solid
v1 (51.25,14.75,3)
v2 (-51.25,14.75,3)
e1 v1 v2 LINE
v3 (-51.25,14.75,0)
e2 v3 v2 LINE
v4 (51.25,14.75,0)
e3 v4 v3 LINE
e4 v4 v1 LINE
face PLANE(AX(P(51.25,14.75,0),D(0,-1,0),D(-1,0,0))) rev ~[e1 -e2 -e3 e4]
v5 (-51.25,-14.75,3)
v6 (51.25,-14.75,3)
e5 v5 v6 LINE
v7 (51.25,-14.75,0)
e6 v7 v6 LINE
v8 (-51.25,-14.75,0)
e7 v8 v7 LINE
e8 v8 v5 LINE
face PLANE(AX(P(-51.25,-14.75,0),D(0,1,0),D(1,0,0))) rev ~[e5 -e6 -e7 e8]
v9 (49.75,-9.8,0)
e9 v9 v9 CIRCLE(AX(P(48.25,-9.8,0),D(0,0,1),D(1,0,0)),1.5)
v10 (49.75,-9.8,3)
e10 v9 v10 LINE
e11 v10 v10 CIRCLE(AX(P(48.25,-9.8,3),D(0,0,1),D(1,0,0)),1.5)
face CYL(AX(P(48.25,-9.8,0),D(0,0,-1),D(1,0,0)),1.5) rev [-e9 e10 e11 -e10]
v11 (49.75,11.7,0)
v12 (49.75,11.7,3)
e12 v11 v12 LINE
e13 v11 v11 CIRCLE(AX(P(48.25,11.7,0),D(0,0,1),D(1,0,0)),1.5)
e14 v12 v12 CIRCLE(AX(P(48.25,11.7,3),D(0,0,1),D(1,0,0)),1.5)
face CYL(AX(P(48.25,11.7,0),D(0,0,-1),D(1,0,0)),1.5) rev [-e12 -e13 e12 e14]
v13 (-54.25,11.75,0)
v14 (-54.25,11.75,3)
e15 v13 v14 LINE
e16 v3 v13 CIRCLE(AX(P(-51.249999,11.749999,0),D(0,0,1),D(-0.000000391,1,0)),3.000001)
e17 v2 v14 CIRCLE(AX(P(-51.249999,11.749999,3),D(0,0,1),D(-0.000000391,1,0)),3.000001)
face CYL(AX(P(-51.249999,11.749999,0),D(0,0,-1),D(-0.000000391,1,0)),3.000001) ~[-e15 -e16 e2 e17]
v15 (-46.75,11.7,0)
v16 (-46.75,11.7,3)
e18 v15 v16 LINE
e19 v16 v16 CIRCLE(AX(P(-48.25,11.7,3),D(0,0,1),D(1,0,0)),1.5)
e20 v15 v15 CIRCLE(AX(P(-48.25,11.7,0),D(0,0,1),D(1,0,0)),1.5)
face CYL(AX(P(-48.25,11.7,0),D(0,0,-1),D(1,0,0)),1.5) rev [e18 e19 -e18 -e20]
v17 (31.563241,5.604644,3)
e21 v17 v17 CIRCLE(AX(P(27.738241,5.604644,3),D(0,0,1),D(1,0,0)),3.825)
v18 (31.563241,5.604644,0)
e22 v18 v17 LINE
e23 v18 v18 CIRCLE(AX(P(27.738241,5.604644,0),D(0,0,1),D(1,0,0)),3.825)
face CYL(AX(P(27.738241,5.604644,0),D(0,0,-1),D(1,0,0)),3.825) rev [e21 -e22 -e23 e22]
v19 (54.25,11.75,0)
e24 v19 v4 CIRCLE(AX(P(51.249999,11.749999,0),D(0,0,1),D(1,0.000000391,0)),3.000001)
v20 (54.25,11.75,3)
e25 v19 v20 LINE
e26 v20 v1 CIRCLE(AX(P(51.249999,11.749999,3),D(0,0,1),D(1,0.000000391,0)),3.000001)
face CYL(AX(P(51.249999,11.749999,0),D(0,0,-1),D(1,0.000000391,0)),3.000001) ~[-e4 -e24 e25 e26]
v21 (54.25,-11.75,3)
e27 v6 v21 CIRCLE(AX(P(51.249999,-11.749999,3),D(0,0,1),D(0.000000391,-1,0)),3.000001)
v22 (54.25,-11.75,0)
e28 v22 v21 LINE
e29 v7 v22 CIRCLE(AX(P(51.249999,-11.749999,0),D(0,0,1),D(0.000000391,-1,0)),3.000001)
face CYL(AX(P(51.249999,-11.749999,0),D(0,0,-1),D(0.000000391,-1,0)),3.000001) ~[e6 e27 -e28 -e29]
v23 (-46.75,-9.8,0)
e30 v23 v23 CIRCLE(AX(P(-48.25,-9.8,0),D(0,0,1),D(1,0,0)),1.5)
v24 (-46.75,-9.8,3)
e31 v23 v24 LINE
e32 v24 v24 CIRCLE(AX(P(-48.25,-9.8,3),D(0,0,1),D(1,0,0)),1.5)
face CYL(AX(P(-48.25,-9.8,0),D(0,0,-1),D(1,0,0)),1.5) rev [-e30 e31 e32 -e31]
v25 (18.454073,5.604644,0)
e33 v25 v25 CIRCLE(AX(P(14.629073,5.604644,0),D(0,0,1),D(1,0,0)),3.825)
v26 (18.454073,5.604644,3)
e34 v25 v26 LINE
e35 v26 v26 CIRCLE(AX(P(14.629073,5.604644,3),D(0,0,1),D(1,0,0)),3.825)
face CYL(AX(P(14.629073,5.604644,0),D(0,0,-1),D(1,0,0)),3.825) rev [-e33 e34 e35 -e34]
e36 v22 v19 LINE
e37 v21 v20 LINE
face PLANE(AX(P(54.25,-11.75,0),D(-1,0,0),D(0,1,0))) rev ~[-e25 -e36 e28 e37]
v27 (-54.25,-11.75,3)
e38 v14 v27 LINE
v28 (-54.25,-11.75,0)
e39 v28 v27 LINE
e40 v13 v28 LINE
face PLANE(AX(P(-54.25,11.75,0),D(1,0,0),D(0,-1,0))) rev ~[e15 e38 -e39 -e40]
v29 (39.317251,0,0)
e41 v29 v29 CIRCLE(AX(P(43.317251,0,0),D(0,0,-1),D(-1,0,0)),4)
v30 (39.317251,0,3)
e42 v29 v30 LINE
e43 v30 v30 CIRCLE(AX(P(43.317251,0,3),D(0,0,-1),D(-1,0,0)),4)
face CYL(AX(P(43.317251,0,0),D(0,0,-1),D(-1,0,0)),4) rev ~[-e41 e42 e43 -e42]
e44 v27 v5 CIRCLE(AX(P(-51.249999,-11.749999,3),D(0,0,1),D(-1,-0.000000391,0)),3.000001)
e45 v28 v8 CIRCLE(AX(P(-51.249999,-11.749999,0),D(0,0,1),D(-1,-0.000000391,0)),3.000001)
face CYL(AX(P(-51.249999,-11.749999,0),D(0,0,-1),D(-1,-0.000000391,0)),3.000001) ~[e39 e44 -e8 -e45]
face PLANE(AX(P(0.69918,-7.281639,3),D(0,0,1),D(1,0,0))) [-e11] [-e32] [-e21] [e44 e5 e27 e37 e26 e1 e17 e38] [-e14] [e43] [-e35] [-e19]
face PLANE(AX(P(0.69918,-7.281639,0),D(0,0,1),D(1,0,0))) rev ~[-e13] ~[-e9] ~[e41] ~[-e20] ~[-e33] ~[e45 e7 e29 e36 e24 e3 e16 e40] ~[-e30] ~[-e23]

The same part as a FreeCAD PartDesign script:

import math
import FreeCAD as App
import Part
import Sketcher
from FreeCAD import Vector

doc = App.newDocument("Part")
body = doc.addObject("PartDesign::Body", "Body")

sketch1 = body.newObject("Sketcher::SketchObject", "Sketch")
sketch1.AttachmentSupport = (doc.getObject("XY_Plane"), [""])
sketch1.MapMode = "FlatFace"
sketch1.addGeometry([
    Part.LineSegment(Vector(54.2, -11.8, 0), Vector(54.2, 11.8, 0)),
    Part.ArcOfCircle(Part.Circle(Vector(51.2, 11.7, 0), Vector(0, 0, 1), 3), math.radians(0), math.radians(90)),
    Part.LineSegment(Vector(51.2, 14.8, 0), Vector(-51.2, 14.8, 0)),
    Part.ArcOfCircle(Part.Circle(Vector(-51.2, 11.7, 0), Vector(0, 0, 1), 3), math.radians(90), math.radians(180)),
    Part.LineSegment(Vector(-54.2, 11.8, 0), Vector(-54.2, -11.8, 0)),
    Part.ArcOfCircle(Part.Circle(Vector(-51.2, -11.7, 0), Vector(0, 0, 1), 3), math.radians(-180), math.radians(-90)),
    Part.LineSegment(Vector(-51.2, -14.8, 0), Vector(51.2, -14.8, 0)),
    Part.ArcOfCircle(Part.Circle(Vector(51.2, -11.7, 0), Vector(0, 0, 1), 3), math.radians(-90), math.radians(0)),
    Part.Circle(Vector(-48.2, -9.8, 0), Vector(0, 0, 1), 1.5),
    Part.Circle(Vector(48.2, -9.8, 0), Vector(0, 0, 1), 1.5),
    Part.Circle(Vector(43.3, 0, 0), Vector(0, 0, 1), 4),
    Part.Circle(Vector(-48.2, 11.7, 0), Vector(0, 0, 1), 1.5),
    Part.Circle(Vector(14.6, 5.6, 0), Vector(0, 0, 1), 3.8),
    Part.Circle(Vector(27.7, 5.6, 0), Vector(0, 0, 1), 3.8),
    Part.Circle(Vector(48.2, 11.7, 0), Vector(0, 0, 1), 1.5),
], False)
sketch1.addConstraint([
    Sketcher.Constraint("Tangent", 0, 2, 1, 1),
    Sketcher.Constraint("Tangent", 1, 2, 2, 1),
    Sketcher.Constraint("Tangent", 2, 2, 3, 1),
    Sketcher.Constraint("Tangent", 3, 2, 4, 1),
    Sketcher.Constraint("Tangent", 4, 2, 5, 1),
    Sketcher.Constraint("Tangent", 5, 2, 6, 1),
    Sketcher.Constraint("Tangent", 6, 2, 7, 1),
    Sketcher.Constraint("Tangent", 7, 2, 0, 1),
    Sketcher.Constraint("Vertical", 0),
    Sketcher.Constraint("Horizontal", 2),
    Sketcher.Constraint("Vertical", 4),
    Sketcher.Constraint("Horizontal", 6),
    Sketcher.Constraint("Equal", 1, 3),
    Sketcher.Constraint("Equal", 3, 5),
    Sketcher.Constraint("Equal", 5, 7),
    Sketcher.Constraint("Equal", 8, 9),
    Sketcher.Constraint("Equal", 9, 11),
    Sketcher.Constraint("Equal", 12, 13),
    Sketcher.Constraint("Equal", 11, 14),
    Sketcher.Constraint("Symmetric", 1, 3, 5, 3, -1, 1),
    Sketcher.Constraint("Symmetric", 8, 3, 9, 3, -2),
    Sketcher.Constraint("Symmetric", 11, 3, 14, 3, -2),
    Sketcher.Constraint("PointOnObject", 10, 3, -1),
    Sketcher.Constraint("Horizontal", 12, 3, 13, 3),
    Sketcher.Constraint("Vertical", 8, 3, 11, 3),
    Sketcher.Constraint("Diameter", 8, 3.0),
    Sketcher.Constraint("Diameter", 10, 8.0),
    Sketcher.Constraint("Radius", 1, 3.000001),
    Sketcher.Constraint("Diameter", 12, 7.65),
    Sketcher.Constraint("DistanceX", 2, 2, 2, 1, 102.5),
    Sketcher.Constraint("DistanceY", 0, 1, 0, 2, 23.5),
    Sketcher.Constraint("DistanceX", 5, 3, 8, 3, 2.999999),
    Sketcher.Constraint("DistanceY", 8, 3, -1, 1, 9.8),
    Sketcher.Constraint("DistanceY", -1, 1, 11, 3, 11.7),
    Sketcher.Constraint("DistanceX", -1, 1, 10, 3, 43.317251),
    Sketcher.Constraint("DistanceX", -1, 1, 13, 3, 27.738241),
    Sketcher.Constraint("DistanceX", 12, 3, 10, 3, 28.688178),
    Sketcher.Constraint("DistanceY", -1, 1, 12, 3, 5.604644),
])
pad1 = body.newObject("PartDesign::Pad", "Pad")
pad1.Profile = sketch1
pad1.Length = 3

doc.recompute()
